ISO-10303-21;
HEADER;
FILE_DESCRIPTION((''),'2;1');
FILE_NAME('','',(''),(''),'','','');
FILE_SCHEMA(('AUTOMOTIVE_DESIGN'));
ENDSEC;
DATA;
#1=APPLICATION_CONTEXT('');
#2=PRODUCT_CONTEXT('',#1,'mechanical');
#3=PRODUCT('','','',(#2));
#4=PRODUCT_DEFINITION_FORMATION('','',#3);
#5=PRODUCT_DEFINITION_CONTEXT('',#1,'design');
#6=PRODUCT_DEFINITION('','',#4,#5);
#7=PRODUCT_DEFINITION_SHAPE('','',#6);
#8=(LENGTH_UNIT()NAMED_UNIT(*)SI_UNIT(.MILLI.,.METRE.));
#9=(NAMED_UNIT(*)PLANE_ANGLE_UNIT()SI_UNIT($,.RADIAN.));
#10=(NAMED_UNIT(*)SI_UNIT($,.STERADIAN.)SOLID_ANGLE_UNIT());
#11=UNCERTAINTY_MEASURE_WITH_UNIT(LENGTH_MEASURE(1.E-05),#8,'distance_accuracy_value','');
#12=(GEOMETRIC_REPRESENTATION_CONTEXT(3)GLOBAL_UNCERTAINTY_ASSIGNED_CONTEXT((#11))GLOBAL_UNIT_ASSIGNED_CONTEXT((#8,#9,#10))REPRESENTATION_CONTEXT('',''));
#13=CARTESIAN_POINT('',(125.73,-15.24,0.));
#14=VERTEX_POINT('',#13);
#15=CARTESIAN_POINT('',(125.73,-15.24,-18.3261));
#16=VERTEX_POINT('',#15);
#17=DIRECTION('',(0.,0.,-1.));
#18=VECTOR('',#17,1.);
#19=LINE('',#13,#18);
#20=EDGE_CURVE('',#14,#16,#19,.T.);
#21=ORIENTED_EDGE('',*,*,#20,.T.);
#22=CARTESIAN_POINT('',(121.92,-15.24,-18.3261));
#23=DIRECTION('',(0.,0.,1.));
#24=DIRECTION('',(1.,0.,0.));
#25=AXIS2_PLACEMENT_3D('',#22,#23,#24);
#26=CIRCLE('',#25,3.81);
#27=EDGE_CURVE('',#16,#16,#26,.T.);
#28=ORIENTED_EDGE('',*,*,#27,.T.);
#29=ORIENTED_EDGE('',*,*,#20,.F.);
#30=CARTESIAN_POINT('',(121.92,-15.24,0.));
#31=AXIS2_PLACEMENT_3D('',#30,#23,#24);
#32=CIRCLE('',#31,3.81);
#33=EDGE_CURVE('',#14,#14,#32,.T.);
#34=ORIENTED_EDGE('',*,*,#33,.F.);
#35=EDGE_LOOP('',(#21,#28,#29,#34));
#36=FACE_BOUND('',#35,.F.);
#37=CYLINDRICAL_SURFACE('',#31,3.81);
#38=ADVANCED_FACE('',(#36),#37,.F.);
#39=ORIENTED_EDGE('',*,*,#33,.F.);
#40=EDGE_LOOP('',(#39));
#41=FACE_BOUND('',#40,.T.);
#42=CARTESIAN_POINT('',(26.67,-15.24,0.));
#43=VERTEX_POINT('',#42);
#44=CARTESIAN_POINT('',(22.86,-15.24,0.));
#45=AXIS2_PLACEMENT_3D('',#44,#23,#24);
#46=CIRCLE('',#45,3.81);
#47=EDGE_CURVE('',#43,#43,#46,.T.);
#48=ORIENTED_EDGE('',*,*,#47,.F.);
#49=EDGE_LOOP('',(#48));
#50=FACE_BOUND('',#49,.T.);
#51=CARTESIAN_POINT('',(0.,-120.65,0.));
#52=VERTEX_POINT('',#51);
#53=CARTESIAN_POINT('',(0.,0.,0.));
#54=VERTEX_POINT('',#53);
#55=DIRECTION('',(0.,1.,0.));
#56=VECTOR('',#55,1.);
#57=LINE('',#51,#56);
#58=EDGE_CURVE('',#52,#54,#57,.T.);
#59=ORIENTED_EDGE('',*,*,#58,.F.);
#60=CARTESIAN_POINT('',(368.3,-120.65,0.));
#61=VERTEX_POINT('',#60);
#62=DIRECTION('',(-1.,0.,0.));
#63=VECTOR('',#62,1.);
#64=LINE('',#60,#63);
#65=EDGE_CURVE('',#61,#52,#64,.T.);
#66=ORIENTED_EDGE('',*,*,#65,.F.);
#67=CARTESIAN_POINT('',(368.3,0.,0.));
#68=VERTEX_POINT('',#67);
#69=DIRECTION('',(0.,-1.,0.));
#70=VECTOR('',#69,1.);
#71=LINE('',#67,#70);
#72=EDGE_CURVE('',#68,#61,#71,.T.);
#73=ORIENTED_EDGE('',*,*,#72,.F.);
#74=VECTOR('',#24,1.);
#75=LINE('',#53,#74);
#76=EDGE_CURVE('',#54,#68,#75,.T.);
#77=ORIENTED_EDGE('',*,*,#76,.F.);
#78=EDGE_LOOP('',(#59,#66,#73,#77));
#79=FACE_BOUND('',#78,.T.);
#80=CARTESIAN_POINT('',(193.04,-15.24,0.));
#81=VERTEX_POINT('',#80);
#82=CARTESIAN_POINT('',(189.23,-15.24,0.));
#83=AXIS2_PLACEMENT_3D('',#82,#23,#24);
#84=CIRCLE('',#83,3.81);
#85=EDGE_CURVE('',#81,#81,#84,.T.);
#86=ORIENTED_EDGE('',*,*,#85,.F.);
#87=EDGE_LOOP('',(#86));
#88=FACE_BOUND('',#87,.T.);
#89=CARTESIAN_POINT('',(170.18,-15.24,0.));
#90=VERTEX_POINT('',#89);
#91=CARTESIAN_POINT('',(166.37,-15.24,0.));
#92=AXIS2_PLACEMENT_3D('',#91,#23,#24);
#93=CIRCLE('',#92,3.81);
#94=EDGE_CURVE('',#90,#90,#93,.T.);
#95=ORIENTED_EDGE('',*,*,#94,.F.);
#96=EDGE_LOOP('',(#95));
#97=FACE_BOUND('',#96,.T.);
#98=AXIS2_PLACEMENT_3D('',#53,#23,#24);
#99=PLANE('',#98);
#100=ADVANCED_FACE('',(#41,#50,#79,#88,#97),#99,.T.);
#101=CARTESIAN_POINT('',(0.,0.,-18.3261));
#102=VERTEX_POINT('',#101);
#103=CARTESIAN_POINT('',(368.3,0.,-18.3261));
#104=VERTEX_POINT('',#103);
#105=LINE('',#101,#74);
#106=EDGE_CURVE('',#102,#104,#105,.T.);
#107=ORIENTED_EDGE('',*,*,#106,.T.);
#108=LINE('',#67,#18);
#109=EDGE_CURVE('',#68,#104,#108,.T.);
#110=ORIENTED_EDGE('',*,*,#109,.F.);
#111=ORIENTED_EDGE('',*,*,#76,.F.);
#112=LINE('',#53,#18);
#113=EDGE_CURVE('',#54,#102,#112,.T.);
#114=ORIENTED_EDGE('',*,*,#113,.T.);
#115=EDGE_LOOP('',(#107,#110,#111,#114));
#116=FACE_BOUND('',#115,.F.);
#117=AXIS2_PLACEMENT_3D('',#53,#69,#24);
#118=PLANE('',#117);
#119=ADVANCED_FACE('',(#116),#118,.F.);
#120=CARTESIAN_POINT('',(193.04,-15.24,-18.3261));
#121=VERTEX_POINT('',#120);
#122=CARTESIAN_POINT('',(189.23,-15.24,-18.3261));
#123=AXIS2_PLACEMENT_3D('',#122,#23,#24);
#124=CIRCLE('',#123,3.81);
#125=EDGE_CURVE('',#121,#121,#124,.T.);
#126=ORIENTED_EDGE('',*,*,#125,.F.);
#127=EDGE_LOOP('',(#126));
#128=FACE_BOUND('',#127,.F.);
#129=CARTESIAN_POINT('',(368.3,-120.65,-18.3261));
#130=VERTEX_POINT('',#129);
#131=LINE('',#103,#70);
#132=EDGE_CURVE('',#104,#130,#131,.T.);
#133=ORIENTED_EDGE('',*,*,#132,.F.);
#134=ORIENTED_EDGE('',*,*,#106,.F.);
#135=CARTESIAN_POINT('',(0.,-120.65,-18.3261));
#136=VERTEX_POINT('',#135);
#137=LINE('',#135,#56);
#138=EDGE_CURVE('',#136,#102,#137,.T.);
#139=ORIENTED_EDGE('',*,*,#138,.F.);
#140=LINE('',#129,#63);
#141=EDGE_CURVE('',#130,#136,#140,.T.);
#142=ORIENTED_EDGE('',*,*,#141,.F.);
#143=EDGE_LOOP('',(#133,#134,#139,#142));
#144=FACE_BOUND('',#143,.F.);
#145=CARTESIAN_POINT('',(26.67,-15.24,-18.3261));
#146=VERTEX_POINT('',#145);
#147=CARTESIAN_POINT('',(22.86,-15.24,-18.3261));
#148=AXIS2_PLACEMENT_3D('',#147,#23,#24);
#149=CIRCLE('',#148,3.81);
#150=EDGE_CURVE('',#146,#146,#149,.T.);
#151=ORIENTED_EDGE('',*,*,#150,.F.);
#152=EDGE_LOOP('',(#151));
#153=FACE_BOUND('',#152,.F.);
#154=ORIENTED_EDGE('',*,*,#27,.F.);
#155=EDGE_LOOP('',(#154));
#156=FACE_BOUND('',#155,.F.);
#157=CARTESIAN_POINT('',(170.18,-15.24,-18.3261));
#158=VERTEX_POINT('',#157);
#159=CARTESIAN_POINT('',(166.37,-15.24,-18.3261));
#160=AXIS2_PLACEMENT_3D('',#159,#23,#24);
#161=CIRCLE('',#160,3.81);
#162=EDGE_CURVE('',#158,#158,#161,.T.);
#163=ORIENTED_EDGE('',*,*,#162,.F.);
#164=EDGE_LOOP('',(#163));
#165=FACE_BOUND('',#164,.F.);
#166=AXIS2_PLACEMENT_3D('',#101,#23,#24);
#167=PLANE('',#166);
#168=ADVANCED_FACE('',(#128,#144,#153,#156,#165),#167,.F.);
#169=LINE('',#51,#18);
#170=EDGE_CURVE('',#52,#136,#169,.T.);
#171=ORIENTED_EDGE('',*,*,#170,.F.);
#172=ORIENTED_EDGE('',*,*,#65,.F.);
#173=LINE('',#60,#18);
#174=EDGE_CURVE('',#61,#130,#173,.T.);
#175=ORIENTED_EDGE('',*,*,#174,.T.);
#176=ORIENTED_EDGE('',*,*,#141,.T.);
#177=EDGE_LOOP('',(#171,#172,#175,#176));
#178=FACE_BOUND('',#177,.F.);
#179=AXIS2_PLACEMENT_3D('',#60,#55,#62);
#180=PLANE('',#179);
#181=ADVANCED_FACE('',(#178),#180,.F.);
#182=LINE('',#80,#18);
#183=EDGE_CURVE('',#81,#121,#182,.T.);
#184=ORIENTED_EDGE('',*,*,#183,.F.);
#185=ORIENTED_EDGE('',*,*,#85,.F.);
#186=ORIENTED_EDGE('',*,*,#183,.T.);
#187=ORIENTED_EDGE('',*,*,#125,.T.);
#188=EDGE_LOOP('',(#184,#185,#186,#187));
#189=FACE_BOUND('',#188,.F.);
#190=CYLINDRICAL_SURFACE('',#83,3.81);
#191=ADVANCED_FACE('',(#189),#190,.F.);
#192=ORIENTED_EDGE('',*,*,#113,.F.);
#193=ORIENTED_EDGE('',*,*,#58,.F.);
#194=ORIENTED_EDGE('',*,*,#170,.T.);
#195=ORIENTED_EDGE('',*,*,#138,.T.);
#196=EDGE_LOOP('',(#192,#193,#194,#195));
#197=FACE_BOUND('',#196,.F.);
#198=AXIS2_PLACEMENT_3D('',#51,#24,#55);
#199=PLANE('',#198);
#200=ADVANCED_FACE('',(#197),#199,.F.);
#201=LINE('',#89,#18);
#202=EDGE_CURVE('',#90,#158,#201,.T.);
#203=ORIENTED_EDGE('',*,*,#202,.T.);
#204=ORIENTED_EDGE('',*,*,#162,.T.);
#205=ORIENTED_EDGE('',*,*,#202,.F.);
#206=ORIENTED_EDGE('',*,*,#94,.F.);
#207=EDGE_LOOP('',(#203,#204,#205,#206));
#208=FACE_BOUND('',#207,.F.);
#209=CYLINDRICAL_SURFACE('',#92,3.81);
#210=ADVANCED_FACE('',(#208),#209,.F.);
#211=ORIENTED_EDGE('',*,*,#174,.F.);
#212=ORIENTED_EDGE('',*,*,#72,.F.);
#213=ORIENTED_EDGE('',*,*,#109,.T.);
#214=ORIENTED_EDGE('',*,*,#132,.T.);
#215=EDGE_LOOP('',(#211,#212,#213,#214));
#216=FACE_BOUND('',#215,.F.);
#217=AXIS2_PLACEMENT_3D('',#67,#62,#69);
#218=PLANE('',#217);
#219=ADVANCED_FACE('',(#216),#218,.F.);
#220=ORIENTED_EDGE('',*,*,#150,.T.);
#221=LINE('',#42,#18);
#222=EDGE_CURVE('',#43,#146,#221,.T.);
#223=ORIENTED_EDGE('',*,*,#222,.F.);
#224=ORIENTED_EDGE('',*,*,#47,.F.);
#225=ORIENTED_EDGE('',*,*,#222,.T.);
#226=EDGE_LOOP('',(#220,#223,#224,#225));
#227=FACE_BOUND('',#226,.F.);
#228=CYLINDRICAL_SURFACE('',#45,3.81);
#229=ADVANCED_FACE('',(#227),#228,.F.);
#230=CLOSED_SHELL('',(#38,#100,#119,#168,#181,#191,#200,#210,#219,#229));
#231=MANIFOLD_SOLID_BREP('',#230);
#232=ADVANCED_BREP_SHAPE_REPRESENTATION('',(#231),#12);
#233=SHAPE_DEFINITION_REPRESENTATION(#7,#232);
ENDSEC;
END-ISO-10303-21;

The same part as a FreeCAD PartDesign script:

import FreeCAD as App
import Part
import Sketcher

V = App.Vector
Q = App.Units.Quantity


def add_polygon(sketch, points):
    """Adds a closed chain of lines whose ends are joined by coincident constraints."""
    first, n = sketch.GeometryCount, len(points)
    for a, b in zip(points, points[1:] + points[:1]):
        sketch.addGeometry(Part.LineSegment(App.Vector(*a, 0), App.Vector(*b, 0)), False)
    for i in range(n):
        sketch.addConstraint(Sketcher.Constraint("Coincident", first + i, 2, first + (i + 1) % n, 1))

doc = App.newDocument("Part")
body = doc.addObject("PartDesign::Body", "Body")

sketch1 = body.newObject("Sketcher::SketchObject", "Sketch")
sketch1.AttachmentSupport = (doc.getObject("XY_Plane"), [""])
sketch1.MapMode = "FlatFace"
add_polygon(sketch1, [(368.3, 0), (0, 0), (0, -120.65), (368.3, -120.65)])
sketch1.addGeometry(Part.Circle(V(22.86, -15.24, 0), V(0, 0, 1), 3.81), False)
sketch1.addGeometry(Part.Circle(V(121.92, -15.24, 0), V(0, 0, 1), 3.81), False)
sketch1.addGeometry(Part.Circle(V(166.37, -15.24, 0), V(0, 0, 1), 3.81), False)
sketch1.addGeometry(Part.Circle(V(189.23, -15.24, 0), V(0, 0, 1), 3.81), False)
sketch1.addConstraint([
    Sketcher.Constraint("Horizontal", 0),
    Sketcher.Constraint("Vertical", 1),
    Sketcher.Constraint("Horizontal", 2),
    Sketcher.Constraint("Vertical", 3),
    Sketcher.Constraint("Coincident", 0, 2, -1, 1),
    Sketcher.Constraint("Equal", 4, 5),
    Sketcher.Constraint("Equal", 5, 6),
    Sketcher.Constraint("Equal", 6, 7),
    Sketcher.Constraint("Horizontal", 4, 3, 5, 3),
    Sketcher.Constraint("Horizontal", 5, 3, 6, 3),
    Sketcher.Constraint("Horizontal", 6, 3, 7, 3),
    Sketcher.Constraint("Diameter", 4, Q("0.3 in")),
    Sketcher.Constraint("DistanceX", 0, 2, 0, 1, Q("14.5 in")),
    Sketcher.Constraint("DistanceY", 1, 2, 1, 1, Q("4.75 in")),
    Sketcher.Constraint("DistanceX", -1, 1, 4, 3, Q("0.9 in")),
    Sketcher.Constraint("DistanceX", 4, 3, 5, 3, Q("3.9 in")),
    Sketcher.Constraint("DistanceX", 6, 3, 7, 3, Q("0.9 in")),
    Sketcher.Constraint("DistanceX", 5, 3, 6, 3, Q("1.75 in")),
    Sketcher.Constraint("DistanceY", 1, 2, 4, 3, Q("4.15 in")),
])
pad1 = body.newObject("PartDesign::Pad", "Pad")
pad1.Profile = sketch1
pad1.Length = Q("0.7215 in")
pad1.Reversed = True

doc.recompute()
